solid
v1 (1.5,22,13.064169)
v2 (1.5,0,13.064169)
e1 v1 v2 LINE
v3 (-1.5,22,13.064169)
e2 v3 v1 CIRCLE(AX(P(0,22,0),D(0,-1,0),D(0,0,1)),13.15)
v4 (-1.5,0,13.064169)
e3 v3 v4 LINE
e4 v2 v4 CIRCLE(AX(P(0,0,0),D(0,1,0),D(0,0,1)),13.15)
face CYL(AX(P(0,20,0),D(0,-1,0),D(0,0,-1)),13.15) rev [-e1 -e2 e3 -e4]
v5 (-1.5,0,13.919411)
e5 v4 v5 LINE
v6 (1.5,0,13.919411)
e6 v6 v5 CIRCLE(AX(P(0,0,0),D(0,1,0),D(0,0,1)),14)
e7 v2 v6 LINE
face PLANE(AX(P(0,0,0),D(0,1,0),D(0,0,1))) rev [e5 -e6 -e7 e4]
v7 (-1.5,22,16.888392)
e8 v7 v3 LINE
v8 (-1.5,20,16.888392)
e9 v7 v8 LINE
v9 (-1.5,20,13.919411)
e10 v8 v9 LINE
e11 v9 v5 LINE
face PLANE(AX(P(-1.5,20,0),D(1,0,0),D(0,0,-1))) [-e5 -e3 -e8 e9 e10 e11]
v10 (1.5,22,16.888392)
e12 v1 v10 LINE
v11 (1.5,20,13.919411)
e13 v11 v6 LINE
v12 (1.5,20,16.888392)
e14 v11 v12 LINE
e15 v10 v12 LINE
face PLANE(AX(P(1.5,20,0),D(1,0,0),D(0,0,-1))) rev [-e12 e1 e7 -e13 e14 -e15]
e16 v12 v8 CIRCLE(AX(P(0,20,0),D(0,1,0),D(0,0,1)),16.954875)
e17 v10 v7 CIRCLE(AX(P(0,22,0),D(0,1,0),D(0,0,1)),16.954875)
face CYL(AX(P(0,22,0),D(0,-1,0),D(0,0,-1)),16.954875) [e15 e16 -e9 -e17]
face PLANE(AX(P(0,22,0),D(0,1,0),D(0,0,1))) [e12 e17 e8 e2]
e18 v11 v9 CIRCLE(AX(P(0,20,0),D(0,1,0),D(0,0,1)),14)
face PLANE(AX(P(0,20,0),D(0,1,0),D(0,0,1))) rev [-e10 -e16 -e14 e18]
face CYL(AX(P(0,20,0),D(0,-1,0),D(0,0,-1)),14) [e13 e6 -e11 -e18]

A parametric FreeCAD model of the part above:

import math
import FreeCAD as App
import Part
import Sketcher
Q = App.Units.Quantity

doc = App.newDocument("Part")
body = doc.addObject("PartDesign::Body", "Body")

# Sketch on XZ plane
sketch1 = body.newObject("Sketcher::SketchObject", "Sketch")
sketch1.AttachmentSupport = (doc.getObject("XZ_Plane"), [""])
sketch1.MapMode = "FlatFace"
sketch1.addGeometry([
    Part.LineSegment(App.Vector(-1.5, 13.9, 0), App.Vector(-1.5, 13.1, 0)),
    Part.ArcOfCircle(Part.Circle(App.Vector(0, 0, 0), App.Vector(0, 0, 1), 13.2), math.radians(97), math.radians(443)),
    Part.LineSegment(App.Vector(1.5, 13.1, 0), App.Vector(1.5, 13.9, 0)),
    Part.ArcOfCircle(Part.Circle(App.Vector(0, 0, 0), App.Vector(0, 0, 1), 14), math.radians(96), math.radians(444)),
], False)
sketch1.addConstraint([
    Sketcher.Constraint("Coincident", 0, 2, 1, 1),
    Sketcher.Constraint("Coincident", 1, 2, 2, 1),
    Sketcher.Constraint("Coincident", 2, 2, 3, 2),
    Sketcher.Constraint("Coincident", 3, 1, 0, 1),
    Sketcher.Constraint("Vertical", 0),
    Sketcher.Constraint("Vertical", 2),
    Sketcher.Constraint("Coincident", 1, 3, -1, 1),
    Sketcher.Constraint("Coincident", 3, 3, -1, 1),
    Sketcher.Constraint("Horizontal", 0, 2, 1, 2),
    Sketcher.Constraint("Radius", 3, Q("14 mm")),
    Sketcher.Constraint("Radius", 1, Q("13.15 mm")),
    Sketcher.Constraint("DistanceX", 0, 2, 1, 2, Q("3 mm")),
])
pad1 = body.newObject("PartDesign::Pad", "Pad")
pad1.Profile = sketch1
pad1.Length = 20
pad1.Reversed = True

# Sketch on XZ plane
sketch2 = body.newObject("Sketcher::SketchObject", "Sketch001")
sketch2.AttachmentSupport = (doc.getObject("XZ_Plane"), [""])
sketch2.MapMode = "FlatFace"
sketch2.AttachmentOffset = App.Placement(App.Vector(0, 0, -20), App.Rotation())
sketch2.addGeometry([
    Part.LineSegment(App.Vector(-1.5, 16.9, 0), App.Vector(-1.5, 13.1, 0)),
    Part.ArcOfCircle(Part.Circle(App.Vector(0, 0, 0), App.Vector(0, 0, 1), 13.2), math.radians(97), math.radians(443)),
    Part.LineSegment(App.Vector(1.5, 13.1, 0), App.Vector(1.5, 16.9, 0)),
    Part.ArcOfCircle(Part.Circle(App.Vector(0, 0, 0), App.Vector(0, 0, 1), 17), math.radians(95), math.radians(445)),
], False)
sketch2.addConstraint([
    Sketcher.Constraint("Coincident", 0, 2, 1, 1),
    Sketcher.Constraint("Coincident", 1, 2, 2, 1),
    Sketcher.Constraint("Coincident", 2, 2, 3, 2),
    Sketcher.Constraint("Coincident", 3, 1, 0, 1),
    Sketcher.Constraint("Vertical", 0),
    Sketcher.Constraint("Vertical", 2),
    Sketcher.Constraint("Coincident", 1, 3, -1, 1),
    Sketcher.Constraint("Coincident", 3, 3, -1, 1),
    Sketcher.Constraint("Horizontal", 0, 2, 1, 2),
    Sketcher.Constraint("Radius", 1, Q("13.15 mm")),
    Sketcher.Constraint("DistanceX", 0, 2, 1, 2, Q("3 mm")),
    Sketcher.Constraint("Radius", 3, Q("16.954875 mm")),
])
pad2 = body.newObject("PartDesign::Pad", "Pad001")
pad2.Profile = sketch2
pad2.Length = 2
pad2.Reversed = True

doc.recompute()
